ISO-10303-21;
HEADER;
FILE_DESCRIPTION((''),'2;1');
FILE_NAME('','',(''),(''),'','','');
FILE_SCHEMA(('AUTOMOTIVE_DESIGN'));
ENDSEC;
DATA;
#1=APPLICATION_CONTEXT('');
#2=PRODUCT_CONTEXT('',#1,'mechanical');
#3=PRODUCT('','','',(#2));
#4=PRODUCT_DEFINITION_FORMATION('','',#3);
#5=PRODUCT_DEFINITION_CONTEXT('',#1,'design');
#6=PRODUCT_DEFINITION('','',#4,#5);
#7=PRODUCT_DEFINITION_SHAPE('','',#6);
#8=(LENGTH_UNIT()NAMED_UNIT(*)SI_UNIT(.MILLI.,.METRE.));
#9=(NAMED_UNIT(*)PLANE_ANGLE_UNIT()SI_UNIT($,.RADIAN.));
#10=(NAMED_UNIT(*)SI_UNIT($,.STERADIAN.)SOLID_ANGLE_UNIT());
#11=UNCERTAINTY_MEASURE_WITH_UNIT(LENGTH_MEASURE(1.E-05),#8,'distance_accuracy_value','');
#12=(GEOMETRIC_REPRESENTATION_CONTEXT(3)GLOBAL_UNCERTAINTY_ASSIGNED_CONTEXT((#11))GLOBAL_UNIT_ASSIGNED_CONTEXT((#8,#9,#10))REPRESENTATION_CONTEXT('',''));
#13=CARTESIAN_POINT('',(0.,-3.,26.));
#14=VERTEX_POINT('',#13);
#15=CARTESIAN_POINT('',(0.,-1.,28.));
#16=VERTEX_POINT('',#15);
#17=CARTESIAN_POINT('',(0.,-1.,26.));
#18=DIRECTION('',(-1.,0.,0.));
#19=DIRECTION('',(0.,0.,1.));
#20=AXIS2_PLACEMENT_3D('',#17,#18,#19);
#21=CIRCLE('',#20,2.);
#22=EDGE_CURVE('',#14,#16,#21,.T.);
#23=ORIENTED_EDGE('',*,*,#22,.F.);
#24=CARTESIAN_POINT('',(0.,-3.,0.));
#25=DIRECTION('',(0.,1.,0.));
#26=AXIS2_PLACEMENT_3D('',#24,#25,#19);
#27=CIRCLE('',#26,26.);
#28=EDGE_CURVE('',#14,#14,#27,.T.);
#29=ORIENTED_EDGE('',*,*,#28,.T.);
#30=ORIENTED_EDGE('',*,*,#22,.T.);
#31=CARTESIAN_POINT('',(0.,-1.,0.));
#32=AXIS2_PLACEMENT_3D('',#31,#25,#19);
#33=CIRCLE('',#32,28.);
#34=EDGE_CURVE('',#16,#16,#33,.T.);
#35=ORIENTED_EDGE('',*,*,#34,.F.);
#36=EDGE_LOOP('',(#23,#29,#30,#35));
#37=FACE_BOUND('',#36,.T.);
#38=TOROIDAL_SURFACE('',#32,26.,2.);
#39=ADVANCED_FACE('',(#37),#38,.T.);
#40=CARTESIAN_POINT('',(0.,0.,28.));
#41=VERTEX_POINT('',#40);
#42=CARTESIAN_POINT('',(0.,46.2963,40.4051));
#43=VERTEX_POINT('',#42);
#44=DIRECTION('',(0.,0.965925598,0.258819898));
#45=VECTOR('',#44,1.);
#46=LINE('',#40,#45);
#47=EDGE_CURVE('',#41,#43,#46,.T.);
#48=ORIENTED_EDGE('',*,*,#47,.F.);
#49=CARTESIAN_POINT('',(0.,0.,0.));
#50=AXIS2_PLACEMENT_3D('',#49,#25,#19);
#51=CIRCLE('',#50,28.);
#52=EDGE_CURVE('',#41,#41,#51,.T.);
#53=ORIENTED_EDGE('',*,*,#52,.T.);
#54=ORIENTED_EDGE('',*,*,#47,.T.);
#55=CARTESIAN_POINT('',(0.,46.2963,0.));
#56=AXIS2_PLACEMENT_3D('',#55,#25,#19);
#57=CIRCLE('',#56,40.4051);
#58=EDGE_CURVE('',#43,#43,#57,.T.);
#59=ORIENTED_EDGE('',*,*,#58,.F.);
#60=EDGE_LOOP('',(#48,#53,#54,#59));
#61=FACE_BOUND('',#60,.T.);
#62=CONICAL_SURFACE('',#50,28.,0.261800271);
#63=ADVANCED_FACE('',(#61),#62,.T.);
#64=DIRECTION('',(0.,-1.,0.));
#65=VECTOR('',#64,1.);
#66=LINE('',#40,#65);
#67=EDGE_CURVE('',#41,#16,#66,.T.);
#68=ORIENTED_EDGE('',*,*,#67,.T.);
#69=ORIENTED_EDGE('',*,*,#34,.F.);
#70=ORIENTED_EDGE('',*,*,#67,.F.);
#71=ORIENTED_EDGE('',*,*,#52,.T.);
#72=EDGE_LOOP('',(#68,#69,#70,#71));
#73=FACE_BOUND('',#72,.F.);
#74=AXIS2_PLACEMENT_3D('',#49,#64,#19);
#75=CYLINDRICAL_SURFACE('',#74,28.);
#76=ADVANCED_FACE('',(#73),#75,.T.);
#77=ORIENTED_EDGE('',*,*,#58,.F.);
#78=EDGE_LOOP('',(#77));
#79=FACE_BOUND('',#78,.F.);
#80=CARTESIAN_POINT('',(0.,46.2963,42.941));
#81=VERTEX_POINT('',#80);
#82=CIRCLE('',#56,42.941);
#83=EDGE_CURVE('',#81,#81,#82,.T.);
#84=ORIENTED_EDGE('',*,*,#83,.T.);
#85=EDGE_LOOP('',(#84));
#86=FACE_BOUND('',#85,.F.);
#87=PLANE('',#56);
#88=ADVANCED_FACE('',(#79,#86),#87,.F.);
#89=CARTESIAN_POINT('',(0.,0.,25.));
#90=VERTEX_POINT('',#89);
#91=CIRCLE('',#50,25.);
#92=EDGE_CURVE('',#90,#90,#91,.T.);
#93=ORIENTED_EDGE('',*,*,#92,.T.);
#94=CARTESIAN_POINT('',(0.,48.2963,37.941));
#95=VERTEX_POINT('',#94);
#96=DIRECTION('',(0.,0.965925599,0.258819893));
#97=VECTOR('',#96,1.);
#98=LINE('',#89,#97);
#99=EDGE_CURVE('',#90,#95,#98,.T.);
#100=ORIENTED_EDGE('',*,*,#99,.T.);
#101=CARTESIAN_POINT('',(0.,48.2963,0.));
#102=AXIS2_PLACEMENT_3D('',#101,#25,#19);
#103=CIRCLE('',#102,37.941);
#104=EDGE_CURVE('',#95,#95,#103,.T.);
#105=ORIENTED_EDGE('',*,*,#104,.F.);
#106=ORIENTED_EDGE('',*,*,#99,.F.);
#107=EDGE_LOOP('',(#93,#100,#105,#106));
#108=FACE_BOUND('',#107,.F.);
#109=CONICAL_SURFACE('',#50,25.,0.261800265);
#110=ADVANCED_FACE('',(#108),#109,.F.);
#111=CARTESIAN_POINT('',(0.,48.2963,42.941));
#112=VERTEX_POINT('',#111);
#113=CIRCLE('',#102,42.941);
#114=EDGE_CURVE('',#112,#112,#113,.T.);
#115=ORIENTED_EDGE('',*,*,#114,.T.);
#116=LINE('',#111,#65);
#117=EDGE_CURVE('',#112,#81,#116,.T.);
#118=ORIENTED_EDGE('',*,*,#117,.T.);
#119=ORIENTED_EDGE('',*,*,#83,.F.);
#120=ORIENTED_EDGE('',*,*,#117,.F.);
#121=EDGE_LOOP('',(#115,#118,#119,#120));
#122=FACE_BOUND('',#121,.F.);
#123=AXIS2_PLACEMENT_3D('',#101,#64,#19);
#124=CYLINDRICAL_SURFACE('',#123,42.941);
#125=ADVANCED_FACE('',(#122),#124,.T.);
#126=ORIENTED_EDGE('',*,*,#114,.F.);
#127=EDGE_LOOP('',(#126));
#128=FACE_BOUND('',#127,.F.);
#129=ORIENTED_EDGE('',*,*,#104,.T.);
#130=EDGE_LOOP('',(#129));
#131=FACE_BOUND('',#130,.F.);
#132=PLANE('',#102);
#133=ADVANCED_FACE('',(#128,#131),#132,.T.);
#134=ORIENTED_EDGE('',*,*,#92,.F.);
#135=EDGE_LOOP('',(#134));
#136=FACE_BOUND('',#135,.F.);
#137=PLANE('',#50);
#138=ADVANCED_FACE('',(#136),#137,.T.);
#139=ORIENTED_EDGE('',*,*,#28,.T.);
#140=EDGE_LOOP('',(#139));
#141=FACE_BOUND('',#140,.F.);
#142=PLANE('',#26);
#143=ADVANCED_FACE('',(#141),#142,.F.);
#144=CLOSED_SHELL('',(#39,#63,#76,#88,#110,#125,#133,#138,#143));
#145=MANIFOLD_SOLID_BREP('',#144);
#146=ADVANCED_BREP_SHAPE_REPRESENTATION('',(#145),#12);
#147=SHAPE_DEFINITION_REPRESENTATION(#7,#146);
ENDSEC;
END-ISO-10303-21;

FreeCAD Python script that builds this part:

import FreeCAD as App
import Part
import Sketcher
from FreeCAD import Vector
Q = App.Units.Quantity


def edges_at(feature, points):
    """Names of the edges that pass closest to the given points."""
    edges = feature.Shape.Edges
    near = lambda p: min(range(len(edges)), key=lambda i: edges[i].distToShape(Part.Vertex(*p))[0])
    return sorted({f"Edge{near(p) + 1}" for p in points})


def add_polygon(sketch, points):
    """Adds a closed chain of lines whose ends are joined by coincident constraints."""
    first, n = sketch.GeometryCount, len(points)
    for a, b in zip(points, points[1:] + points[:1]):
        sketch.addGeometry(Part.LineSegment(App.Vector(*a, 0), App.Vector(*b, 0)), False)
    for i in range(n):
        sketch.addConstraint(Sketcher.Constraint("Coincident", first + i, 2, first + (i + 1) % n, 1))

doc = App.newDocument("Part")
params = doc.addObject("Spreadsheet::Sheet", "Params")
for row, (alias, value) in enumerate([
    ("sketch1_width", "3 mm"),
    ("sketch1_width2", "2 mm"),
    ("sketch1_height", "25 mm"),
    ("sketch1_height2", "5 mm"),
    ("sketch1_length", "50 mm"),
    ("revolution_angle", "360 deg"),
    ("fillet_radius", "2 mm"),
], start=1):
    params.set(f"A{row}", alias)
    params.set(f"B{row}", "=" + value)
    params.setAlias(f"B{row}", alias)

body = doc.addObject("PartDesign::Body", "Body")

# Sketch on YZ plane
sketch1 = doc.addObject("Sketcher::SketchObject", "Sketch")
body.addObject(sketch1)
sketch1.AttachmentSupport = (doc.YZ_Plane, [""])
sketch1.MapMode = "FlatFace"
add_polygon(sketch1, [(-3, 0), (0, 0), (0, 25), (48.3, 37.9), (48.3, 42.9), (46.3, 42.9), (46.3, 40.4), (0, 28), (-3, 28)])  # lines 0-8
sketch1.addConstraint(Sketcher.Constraint("Horizontal", 0))
sketch1.addConstraint(Sketcher.Constraint("Vertical", 1))
sketch1.addConstraint(Sketcher.Constraint("Vertical", 3))
sketch1.addConstraint(Sketcher.Constraint("Horizontal", 4))
sketch1.addConstraint(Sketcher.Constraint("Vertical", 5))
sketch1.addConstraint(Sketcher.Constraint("Horizontal", 7))
sketch1.addConstraint(Sketcher.Constraint("Vertical", 8))
sketch1.addConstraint(Sketcher.Constraint("Coincident", 0, 2, -1, 1))
sketch1.addConstraint(Sketcher.Constraint("PointOnObject", 6, 2, -2))
sketch1.addConstraint(Sketcher.Constraint("Parallel", 2, 6))
sketch1.addConstraint(Sketcher.Constraint("DistanceX", 0, 1, 0, 2, 3.0))
sketch1.addConstraint(Sketcher.Constraint("DistanceX", 4, 2, 4, 1, 2.0))
sketch1.addConstraint(Sketcher.Constraint("DistanceY", 1, 1, 1, 2, 25.0))
sketch1.addConstraint(Sketcher.Constraint("DistanceY", 3, 1, 3, 2, 5.0))
sketch1.addConstraint(Sketcher.Constraint("Distance", 2, 50.0))
sketch1.addConstraint(Sketcher.Constraint("DistanceY", 1, 2, 6, 2, 3.0))
sketch1.addConstraint(Sketcher.Constraint("Angle", 2, Q("15 deg")))
sketch1.setExpression("Constraints[19]", "Params.sketch1_width")
sketch1.setExpression("Constraints[20]", "Params.sketch1_width2")
sketch1.setExpression("Constraints[21]", "Params.sketch1_height")
sketch1.setExpression("Constraints[22]", "Params.sketch1_height2")
sketch1.setExpression("Constraints[23]", "Params.sketch1_length")
revolution = doc.addObject("PartDesign::Revolution", "Revolution")
body.addObject(revolution)
revolution.Profile = sketch1
revolution.ReferenceAxis = (sketch1, ["H_Axis"])
revolution.setExpression("Angle", "Params.revolution_angle")
doc.recompute()

fillet = doc.addObject("PartDesign::Fillet", "Fillet")
body.addObject(fillet)
fillet.Base = (revolution, edges_at(revolution, [(0, -3, -28)]))
fillet.setExpression("Radius", "Params.fillet_radius")

doc.recompute()
